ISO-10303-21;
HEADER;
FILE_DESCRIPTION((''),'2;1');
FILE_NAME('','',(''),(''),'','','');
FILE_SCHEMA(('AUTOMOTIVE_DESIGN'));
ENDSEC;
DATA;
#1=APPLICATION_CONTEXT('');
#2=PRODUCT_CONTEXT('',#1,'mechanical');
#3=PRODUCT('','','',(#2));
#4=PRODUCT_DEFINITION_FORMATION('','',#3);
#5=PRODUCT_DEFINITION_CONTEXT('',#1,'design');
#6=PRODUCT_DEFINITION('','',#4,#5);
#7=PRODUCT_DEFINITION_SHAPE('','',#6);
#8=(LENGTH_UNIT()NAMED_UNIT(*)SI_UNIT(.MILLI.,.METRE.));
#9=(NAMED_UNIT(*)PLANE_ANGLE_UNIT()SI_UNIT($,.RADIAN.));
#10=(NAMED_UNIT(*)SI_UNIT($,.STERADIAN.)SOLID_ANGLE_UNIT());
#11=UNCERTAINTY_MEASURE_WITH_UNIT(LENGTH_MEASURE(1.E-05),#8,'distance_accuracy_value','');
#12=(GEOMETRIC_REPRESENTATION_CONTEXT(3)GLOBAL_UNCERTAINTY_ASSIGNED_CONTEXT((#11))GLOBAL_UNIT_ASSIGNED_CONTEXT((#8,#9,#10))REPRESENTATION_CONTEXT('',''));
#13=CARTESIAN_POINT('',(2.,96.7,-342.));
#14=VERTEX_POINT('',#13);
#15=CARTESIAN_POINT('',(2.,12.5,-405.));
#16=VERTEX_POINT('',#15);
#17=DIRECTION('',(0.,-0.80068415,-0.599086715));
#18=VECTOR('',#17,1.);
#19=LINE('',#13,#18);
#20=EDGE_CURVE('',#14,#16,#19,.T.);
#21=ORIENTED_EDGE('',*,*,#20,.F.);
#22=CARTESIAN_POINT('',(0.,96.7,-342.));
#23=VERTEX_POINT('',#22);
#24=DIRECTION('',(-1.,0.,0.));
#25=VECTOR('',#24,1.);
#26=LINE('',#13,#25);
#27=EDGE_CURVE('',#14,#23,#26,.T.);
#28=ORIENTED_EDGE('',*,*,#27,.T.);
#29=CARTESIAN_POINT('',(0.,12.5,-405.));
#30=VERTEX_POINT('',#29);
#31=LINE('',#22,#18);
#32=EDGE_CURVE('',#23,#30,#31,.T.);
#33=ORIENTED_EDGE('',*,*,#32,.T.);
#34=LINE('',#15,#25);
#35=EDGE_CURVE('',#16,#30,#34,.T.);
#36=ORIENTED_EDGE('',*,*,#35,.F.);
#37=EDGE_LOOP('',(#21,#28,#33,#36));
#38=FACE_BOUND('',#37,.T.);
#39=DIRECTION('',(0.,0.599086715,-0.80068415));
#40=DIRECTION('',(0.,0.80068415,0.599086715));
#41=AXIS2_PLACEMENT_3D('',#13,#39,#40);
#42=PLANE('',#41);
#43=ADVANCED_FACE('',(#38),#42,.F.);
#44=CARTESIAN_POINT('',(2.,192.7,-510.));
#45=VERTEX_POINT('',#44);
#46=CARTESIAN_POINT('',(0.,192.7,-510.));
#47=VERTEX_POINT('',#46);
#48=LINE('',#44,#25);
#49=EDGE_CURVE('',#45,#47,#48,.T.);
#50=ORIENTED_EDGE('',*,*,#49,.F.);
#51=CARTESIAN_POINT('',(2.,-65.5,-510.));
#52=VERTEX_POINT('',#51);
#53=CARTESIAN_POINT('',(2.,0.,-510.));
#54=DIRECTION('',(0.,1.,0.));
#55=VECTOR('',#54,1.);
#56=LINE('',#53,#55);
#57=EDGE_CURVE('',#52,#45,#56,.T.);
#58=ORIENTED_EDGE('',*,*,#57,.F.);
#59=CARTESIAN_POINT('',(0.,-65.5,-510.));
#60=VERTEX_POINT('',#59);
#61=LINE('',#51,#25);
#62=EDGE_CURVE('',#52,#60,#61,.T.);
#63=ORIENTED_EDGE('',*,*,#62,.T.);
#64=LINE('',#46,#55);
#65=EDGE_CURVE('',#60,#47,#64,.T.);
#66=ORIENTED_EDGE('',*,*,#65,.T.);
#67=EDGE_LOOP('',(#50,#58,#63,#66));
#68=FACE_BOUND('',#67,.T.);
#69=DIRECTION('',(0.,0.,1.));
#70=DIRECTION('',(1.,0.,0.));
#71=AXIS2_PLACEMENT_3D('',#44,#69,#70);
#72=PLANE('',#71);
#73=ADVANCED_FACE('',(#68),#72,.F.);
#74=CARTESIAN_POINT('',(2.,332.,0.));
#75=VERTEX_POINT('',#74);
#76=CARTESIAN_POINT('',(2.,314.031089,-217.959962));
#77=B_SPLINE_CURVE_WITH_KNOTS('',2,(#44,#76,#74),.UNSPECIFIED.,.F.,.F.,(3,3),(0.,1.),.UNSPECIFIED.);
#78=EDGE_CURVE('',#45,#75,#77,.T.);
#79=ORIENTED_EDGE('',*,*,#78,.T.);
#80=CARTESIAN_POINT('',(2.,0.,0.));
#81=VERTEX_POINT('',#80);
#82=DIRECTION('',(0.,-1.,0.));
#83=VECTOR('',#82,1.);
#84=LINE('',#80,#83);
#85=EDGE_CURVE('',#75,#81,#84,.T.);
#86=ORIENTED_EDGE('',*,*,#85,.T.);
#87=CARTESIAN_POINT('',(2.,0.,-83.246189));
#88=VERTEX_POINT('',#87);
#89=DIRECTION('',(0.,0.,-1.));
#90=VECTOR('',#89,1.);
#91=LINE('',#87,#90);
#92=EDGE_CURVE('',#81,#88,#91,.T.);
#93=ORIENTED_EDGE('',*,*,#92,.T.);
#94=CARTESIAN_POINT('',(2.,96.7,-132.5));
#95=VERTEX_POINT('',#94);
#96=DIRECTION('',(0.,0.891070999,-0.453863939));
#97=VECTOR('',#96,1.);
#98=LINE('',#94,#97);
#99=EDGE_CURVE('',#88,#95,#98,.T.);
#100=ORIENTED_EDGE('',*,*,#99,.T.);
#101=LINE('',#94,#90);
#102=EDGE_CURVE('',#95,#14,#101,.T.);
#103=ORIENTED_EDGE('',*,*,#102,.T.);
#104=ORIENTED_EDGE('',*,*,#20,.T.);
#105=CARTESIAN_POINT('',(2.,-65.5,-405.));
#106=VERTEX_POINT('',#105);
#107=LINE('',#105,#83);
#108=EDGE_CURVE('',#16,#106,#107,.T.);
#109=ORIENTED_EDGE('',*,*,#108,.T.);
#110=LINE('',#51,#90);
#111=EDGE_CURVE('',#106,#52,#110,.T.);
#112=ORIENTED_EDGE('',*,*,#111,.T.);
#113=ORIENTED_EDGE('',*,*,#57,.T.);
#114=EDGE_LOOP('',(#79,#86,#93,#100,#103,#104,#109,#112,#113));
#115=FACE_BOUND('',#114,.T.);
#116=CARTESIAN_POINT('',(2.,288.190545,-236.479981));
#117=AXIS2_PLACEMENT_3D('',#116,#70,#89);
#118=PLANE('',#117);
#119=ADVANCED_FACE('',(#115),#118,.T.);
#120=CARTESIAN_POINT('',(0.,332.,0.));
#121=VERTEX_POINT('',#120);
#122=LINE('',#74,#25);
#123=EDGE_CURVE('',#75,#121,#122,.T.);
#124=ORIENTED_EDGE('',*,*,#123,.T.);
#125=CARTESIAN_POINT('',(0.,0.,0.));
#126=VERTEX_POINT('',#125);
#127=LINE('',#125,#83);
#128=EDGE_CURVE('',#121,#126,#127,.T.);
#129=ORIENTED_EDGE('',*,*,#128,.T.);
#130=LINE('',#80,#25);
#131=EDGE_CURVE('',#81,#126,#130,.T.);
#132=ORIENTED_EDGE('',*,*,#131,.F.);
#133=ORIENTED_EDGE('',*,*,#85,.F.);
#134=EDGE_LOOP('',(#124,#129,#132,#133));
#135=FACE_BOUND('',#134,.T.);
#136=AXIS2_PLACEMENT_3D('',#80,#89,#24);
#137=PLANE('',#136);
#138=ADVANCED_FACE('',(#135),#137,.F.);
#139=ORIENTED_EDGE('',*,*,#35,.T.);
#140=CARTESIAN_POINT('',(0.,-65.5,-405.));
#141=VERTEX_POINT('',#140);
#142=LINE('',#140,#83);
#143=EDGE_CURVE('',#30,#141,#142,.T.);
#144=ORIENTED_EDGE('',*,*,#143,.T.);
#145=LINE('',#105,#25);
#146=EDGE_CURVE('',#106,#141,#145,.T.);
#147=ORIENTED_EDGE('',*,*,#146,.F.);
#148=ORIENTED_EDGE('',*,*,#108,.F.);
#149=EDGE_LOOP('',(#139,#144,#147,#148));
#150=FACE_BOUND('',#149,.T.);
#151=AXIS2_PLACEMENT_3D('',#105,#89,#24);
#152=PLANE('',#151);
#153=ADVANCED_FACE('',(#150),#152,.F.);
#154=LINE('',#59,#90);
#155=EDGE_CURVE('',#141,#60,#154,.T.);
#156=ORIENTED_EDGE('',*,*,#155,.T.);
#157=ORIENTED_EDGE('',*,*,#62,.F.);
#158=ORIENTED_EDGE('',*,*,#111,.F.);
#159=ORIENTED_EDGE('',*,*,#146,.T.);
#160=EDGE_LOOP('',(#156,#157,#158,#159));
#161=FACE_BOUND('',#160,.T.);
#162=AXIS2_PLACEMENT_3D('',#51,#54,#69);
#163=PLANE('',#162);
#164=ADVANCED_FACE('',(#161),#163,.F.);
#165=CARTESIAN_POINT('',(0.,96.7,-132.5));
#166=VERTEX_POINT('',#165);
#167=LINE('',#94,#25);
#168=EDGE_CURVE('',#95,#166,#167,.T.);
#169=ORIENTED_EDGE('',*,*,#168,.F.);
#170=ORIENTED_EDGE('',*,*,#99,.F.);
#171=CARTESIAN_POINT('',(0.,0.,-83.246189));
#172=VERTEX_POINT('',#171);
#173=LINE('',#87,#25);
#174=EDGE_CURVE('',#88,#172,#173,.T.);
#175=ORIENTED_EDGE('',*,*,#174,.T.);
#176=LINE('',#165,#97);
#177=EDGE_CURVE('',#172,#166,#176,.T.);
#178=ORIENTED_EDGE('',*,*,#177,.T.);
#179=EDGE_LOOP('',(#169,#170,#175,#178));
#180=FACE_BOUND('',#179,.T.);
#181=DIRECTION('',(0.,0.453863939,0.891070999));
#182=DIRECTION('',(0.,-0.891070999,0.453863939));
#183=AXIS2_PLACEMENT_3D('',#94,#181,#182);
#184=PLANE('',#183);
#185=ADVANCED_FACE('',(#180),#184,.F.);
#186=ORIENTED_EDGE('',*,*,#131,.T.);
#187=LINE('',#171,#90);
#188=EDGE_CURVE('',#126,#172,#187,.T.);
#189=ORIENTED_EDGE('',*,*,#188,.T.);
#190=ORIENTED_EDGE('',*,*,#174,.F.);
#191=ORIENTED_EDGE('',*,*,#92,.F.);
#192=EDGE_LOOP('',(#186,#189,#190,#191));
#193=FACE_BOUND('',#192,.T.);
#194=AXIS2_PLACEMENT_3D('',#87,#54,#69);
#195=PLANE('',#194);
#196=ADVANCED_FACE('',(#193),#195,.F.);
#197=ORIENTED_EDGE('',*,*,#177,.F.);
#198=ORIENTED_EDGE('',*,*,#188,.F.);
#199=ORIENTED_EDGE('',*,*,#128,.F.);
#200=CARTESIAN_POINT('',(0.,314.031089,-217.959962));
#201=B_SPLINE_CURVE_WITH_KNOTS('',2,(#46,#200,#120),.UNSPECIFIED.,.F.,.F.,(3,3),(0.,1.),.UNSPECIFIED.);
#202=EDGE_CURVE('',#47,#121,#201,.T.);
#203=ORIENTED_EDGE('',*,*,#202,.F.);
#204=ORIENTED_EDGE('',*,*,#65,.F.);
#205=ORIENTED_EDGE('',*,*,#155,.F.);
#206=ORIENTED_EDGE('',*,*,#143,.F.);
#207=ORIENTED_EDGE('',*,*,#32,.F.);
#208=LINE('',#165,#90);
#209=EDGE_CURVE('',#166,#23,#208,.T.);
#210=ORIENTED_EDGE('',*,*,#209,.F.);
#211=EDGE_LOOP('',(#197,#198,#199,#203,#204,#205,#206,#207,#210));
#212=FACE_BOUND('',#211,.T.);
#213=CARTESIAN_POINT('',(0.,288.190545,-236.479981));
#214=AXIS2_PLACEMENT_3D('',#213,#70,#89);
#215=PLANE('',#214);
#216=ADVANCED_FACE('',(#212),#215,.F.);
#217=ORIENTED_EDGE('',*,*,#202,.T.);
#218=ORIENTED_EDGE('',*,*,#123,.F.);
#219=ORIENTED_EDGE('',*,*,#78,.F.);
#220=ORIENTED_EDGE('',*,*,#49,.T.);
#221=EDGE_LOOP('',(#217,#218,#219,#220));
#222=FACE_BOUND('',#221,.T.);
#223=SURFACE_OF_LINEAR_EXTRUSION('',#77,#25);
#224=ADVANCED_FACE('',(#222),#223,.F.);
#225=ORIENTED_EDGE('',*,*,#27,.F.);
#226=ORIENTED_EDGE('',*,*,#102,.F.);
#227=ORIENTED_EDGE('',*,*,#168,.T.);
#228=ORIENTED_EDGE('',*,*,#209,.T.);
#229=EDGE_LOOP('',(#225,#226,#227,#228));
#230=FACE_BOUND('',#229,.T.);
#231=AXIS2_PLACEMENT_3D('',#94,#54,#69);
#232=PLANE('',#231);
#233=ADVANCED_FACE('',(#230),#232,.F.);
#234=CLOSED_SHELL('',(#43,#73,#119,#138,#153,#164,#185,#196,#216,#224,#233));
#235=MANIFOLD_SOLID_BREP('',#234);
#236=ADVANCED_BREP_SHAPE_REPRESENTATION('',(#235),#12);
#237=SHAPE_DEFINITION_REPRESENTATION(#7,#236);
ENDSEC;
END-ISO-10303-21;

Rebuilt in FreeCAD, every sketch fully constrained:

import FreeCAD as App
import Part
import Sketcher

doc = App.newDocument("Part")
body = doc.addObject("PartDesign::Body", "Body")

# Sketch on YZ plane
sketch1 = body.newObject("Sketcher::SketchObject", "Sketch")
sketch1.AttachmentSupport = (doc.getObject("YZ_Plane"), [""])
sketch1.MapMode = "FlatFace"
sketch1.addGeometry([
    Part.LineSegment(App.Vector(332, 0, 0), App.Vector(0, 0, 0)),  # 0
    Part.LineSegment(App.Vector(0, 0, 0), App.Vector(0, -83.246189, 0)),  # 1
    Part.LineSegment(App.Vector(0, -83.246189, 0), App.Vector(96.7, -132.5, 0)),  # 2
    Part.LineSegment(App.Vector(96.7, -132.5, 0), App.Vector(96.7, -342, 0)),  # 3
    Part.LineSegment(App.Vector(96.7, -342, 0), App.Vector(12.5, -405, 0)),  # 4
    Part.LineSegment(App.Vector(12.5, -405, 0), App.Vector(-65.5, -405, 0)),  # 5
    Part.LineSegment(App.Vector(-65.5, -405, 0), App.Vector(-65.5, -510, 0)),  # 6
    Part.LineSegment(App.Vector(-65.5, -510, 0), App.Vector(192.7, -510, 0)),  # 7
    Part.BSplineCurve([App.Vector(332, 0, 0), App.Vector(314.031089, -217.959962, 0), App.Vector(192.7, -510, 0)], [3, 3], [0, 1], False, 2, [1, 1, 1], False),  # 8
], False)
sketch1.addConstraint([
    Sketcher.Constraint("Block", 8),
    Sketcher.Constraint("Coincident", 0, 2, 1, 1),
    Sketcher.Constraint("Coincident", 1, 2, 2, 1),
    Sketcher.Constraint("Coincident", 2, 2, 3, 1),
    Sketcher.Constraint("Coincident", 3, 2, 4, 1),
    Sketcher.Constraint("Coincident", 4, 2, 5, 1),
    Sketcher.Constraint("Coincident", 5, 2, 6, 1),
    Sketcher.Constraint("Coincident", 6, 2, 7, 1),
    Sketcher.Constraint("Coincident", 7, 2, 8, 2),
    Sketcher.Constraint("Coincident", 8, 1, 0, 1),
    Sketcher.Constraint("Horizontal", 0),
    Sketcher.Constraint("Vertical", 1),
    Sketcher.Constraint("Vertical", 3),
    Sketcher.Constraint("Horizontal", 5),
    Sketcher.Constraint("Vertical", 6),
    Sketcher.Constraint("Horizontal", 7),
    Sketcher.Constraint("PointOnObject", 1, 2, -2),
    Sketcher.Constraint("DistanceX", 5, 2, 5, 1, 78.0),
    Sketcher.Constraint("DistanceY", 6, 2, 6, 1, 105.0),
    Sketcher.Constraint("DistanceX", 7, 1, 7, 2, 258.2),
    Sketcher.Constraint("DistanceY", 3, 2, 3, 1, 209.5),
    Sketcher.Constraint("DistanceY", 3, 2, -1, 1, 342.0),
    Sketcher.Constraint("DistanceX", 3, 2, 7, 2, 96.0),
    Sketcher.Constraint("DistanceY", 1, 2, 1, 1, 83.246189),
])
pad1 = body.newObject("PartDesign::Pad", "Pad")
pad1.Profile = sketch1
pad1.Length = 2

doc.recompute()
